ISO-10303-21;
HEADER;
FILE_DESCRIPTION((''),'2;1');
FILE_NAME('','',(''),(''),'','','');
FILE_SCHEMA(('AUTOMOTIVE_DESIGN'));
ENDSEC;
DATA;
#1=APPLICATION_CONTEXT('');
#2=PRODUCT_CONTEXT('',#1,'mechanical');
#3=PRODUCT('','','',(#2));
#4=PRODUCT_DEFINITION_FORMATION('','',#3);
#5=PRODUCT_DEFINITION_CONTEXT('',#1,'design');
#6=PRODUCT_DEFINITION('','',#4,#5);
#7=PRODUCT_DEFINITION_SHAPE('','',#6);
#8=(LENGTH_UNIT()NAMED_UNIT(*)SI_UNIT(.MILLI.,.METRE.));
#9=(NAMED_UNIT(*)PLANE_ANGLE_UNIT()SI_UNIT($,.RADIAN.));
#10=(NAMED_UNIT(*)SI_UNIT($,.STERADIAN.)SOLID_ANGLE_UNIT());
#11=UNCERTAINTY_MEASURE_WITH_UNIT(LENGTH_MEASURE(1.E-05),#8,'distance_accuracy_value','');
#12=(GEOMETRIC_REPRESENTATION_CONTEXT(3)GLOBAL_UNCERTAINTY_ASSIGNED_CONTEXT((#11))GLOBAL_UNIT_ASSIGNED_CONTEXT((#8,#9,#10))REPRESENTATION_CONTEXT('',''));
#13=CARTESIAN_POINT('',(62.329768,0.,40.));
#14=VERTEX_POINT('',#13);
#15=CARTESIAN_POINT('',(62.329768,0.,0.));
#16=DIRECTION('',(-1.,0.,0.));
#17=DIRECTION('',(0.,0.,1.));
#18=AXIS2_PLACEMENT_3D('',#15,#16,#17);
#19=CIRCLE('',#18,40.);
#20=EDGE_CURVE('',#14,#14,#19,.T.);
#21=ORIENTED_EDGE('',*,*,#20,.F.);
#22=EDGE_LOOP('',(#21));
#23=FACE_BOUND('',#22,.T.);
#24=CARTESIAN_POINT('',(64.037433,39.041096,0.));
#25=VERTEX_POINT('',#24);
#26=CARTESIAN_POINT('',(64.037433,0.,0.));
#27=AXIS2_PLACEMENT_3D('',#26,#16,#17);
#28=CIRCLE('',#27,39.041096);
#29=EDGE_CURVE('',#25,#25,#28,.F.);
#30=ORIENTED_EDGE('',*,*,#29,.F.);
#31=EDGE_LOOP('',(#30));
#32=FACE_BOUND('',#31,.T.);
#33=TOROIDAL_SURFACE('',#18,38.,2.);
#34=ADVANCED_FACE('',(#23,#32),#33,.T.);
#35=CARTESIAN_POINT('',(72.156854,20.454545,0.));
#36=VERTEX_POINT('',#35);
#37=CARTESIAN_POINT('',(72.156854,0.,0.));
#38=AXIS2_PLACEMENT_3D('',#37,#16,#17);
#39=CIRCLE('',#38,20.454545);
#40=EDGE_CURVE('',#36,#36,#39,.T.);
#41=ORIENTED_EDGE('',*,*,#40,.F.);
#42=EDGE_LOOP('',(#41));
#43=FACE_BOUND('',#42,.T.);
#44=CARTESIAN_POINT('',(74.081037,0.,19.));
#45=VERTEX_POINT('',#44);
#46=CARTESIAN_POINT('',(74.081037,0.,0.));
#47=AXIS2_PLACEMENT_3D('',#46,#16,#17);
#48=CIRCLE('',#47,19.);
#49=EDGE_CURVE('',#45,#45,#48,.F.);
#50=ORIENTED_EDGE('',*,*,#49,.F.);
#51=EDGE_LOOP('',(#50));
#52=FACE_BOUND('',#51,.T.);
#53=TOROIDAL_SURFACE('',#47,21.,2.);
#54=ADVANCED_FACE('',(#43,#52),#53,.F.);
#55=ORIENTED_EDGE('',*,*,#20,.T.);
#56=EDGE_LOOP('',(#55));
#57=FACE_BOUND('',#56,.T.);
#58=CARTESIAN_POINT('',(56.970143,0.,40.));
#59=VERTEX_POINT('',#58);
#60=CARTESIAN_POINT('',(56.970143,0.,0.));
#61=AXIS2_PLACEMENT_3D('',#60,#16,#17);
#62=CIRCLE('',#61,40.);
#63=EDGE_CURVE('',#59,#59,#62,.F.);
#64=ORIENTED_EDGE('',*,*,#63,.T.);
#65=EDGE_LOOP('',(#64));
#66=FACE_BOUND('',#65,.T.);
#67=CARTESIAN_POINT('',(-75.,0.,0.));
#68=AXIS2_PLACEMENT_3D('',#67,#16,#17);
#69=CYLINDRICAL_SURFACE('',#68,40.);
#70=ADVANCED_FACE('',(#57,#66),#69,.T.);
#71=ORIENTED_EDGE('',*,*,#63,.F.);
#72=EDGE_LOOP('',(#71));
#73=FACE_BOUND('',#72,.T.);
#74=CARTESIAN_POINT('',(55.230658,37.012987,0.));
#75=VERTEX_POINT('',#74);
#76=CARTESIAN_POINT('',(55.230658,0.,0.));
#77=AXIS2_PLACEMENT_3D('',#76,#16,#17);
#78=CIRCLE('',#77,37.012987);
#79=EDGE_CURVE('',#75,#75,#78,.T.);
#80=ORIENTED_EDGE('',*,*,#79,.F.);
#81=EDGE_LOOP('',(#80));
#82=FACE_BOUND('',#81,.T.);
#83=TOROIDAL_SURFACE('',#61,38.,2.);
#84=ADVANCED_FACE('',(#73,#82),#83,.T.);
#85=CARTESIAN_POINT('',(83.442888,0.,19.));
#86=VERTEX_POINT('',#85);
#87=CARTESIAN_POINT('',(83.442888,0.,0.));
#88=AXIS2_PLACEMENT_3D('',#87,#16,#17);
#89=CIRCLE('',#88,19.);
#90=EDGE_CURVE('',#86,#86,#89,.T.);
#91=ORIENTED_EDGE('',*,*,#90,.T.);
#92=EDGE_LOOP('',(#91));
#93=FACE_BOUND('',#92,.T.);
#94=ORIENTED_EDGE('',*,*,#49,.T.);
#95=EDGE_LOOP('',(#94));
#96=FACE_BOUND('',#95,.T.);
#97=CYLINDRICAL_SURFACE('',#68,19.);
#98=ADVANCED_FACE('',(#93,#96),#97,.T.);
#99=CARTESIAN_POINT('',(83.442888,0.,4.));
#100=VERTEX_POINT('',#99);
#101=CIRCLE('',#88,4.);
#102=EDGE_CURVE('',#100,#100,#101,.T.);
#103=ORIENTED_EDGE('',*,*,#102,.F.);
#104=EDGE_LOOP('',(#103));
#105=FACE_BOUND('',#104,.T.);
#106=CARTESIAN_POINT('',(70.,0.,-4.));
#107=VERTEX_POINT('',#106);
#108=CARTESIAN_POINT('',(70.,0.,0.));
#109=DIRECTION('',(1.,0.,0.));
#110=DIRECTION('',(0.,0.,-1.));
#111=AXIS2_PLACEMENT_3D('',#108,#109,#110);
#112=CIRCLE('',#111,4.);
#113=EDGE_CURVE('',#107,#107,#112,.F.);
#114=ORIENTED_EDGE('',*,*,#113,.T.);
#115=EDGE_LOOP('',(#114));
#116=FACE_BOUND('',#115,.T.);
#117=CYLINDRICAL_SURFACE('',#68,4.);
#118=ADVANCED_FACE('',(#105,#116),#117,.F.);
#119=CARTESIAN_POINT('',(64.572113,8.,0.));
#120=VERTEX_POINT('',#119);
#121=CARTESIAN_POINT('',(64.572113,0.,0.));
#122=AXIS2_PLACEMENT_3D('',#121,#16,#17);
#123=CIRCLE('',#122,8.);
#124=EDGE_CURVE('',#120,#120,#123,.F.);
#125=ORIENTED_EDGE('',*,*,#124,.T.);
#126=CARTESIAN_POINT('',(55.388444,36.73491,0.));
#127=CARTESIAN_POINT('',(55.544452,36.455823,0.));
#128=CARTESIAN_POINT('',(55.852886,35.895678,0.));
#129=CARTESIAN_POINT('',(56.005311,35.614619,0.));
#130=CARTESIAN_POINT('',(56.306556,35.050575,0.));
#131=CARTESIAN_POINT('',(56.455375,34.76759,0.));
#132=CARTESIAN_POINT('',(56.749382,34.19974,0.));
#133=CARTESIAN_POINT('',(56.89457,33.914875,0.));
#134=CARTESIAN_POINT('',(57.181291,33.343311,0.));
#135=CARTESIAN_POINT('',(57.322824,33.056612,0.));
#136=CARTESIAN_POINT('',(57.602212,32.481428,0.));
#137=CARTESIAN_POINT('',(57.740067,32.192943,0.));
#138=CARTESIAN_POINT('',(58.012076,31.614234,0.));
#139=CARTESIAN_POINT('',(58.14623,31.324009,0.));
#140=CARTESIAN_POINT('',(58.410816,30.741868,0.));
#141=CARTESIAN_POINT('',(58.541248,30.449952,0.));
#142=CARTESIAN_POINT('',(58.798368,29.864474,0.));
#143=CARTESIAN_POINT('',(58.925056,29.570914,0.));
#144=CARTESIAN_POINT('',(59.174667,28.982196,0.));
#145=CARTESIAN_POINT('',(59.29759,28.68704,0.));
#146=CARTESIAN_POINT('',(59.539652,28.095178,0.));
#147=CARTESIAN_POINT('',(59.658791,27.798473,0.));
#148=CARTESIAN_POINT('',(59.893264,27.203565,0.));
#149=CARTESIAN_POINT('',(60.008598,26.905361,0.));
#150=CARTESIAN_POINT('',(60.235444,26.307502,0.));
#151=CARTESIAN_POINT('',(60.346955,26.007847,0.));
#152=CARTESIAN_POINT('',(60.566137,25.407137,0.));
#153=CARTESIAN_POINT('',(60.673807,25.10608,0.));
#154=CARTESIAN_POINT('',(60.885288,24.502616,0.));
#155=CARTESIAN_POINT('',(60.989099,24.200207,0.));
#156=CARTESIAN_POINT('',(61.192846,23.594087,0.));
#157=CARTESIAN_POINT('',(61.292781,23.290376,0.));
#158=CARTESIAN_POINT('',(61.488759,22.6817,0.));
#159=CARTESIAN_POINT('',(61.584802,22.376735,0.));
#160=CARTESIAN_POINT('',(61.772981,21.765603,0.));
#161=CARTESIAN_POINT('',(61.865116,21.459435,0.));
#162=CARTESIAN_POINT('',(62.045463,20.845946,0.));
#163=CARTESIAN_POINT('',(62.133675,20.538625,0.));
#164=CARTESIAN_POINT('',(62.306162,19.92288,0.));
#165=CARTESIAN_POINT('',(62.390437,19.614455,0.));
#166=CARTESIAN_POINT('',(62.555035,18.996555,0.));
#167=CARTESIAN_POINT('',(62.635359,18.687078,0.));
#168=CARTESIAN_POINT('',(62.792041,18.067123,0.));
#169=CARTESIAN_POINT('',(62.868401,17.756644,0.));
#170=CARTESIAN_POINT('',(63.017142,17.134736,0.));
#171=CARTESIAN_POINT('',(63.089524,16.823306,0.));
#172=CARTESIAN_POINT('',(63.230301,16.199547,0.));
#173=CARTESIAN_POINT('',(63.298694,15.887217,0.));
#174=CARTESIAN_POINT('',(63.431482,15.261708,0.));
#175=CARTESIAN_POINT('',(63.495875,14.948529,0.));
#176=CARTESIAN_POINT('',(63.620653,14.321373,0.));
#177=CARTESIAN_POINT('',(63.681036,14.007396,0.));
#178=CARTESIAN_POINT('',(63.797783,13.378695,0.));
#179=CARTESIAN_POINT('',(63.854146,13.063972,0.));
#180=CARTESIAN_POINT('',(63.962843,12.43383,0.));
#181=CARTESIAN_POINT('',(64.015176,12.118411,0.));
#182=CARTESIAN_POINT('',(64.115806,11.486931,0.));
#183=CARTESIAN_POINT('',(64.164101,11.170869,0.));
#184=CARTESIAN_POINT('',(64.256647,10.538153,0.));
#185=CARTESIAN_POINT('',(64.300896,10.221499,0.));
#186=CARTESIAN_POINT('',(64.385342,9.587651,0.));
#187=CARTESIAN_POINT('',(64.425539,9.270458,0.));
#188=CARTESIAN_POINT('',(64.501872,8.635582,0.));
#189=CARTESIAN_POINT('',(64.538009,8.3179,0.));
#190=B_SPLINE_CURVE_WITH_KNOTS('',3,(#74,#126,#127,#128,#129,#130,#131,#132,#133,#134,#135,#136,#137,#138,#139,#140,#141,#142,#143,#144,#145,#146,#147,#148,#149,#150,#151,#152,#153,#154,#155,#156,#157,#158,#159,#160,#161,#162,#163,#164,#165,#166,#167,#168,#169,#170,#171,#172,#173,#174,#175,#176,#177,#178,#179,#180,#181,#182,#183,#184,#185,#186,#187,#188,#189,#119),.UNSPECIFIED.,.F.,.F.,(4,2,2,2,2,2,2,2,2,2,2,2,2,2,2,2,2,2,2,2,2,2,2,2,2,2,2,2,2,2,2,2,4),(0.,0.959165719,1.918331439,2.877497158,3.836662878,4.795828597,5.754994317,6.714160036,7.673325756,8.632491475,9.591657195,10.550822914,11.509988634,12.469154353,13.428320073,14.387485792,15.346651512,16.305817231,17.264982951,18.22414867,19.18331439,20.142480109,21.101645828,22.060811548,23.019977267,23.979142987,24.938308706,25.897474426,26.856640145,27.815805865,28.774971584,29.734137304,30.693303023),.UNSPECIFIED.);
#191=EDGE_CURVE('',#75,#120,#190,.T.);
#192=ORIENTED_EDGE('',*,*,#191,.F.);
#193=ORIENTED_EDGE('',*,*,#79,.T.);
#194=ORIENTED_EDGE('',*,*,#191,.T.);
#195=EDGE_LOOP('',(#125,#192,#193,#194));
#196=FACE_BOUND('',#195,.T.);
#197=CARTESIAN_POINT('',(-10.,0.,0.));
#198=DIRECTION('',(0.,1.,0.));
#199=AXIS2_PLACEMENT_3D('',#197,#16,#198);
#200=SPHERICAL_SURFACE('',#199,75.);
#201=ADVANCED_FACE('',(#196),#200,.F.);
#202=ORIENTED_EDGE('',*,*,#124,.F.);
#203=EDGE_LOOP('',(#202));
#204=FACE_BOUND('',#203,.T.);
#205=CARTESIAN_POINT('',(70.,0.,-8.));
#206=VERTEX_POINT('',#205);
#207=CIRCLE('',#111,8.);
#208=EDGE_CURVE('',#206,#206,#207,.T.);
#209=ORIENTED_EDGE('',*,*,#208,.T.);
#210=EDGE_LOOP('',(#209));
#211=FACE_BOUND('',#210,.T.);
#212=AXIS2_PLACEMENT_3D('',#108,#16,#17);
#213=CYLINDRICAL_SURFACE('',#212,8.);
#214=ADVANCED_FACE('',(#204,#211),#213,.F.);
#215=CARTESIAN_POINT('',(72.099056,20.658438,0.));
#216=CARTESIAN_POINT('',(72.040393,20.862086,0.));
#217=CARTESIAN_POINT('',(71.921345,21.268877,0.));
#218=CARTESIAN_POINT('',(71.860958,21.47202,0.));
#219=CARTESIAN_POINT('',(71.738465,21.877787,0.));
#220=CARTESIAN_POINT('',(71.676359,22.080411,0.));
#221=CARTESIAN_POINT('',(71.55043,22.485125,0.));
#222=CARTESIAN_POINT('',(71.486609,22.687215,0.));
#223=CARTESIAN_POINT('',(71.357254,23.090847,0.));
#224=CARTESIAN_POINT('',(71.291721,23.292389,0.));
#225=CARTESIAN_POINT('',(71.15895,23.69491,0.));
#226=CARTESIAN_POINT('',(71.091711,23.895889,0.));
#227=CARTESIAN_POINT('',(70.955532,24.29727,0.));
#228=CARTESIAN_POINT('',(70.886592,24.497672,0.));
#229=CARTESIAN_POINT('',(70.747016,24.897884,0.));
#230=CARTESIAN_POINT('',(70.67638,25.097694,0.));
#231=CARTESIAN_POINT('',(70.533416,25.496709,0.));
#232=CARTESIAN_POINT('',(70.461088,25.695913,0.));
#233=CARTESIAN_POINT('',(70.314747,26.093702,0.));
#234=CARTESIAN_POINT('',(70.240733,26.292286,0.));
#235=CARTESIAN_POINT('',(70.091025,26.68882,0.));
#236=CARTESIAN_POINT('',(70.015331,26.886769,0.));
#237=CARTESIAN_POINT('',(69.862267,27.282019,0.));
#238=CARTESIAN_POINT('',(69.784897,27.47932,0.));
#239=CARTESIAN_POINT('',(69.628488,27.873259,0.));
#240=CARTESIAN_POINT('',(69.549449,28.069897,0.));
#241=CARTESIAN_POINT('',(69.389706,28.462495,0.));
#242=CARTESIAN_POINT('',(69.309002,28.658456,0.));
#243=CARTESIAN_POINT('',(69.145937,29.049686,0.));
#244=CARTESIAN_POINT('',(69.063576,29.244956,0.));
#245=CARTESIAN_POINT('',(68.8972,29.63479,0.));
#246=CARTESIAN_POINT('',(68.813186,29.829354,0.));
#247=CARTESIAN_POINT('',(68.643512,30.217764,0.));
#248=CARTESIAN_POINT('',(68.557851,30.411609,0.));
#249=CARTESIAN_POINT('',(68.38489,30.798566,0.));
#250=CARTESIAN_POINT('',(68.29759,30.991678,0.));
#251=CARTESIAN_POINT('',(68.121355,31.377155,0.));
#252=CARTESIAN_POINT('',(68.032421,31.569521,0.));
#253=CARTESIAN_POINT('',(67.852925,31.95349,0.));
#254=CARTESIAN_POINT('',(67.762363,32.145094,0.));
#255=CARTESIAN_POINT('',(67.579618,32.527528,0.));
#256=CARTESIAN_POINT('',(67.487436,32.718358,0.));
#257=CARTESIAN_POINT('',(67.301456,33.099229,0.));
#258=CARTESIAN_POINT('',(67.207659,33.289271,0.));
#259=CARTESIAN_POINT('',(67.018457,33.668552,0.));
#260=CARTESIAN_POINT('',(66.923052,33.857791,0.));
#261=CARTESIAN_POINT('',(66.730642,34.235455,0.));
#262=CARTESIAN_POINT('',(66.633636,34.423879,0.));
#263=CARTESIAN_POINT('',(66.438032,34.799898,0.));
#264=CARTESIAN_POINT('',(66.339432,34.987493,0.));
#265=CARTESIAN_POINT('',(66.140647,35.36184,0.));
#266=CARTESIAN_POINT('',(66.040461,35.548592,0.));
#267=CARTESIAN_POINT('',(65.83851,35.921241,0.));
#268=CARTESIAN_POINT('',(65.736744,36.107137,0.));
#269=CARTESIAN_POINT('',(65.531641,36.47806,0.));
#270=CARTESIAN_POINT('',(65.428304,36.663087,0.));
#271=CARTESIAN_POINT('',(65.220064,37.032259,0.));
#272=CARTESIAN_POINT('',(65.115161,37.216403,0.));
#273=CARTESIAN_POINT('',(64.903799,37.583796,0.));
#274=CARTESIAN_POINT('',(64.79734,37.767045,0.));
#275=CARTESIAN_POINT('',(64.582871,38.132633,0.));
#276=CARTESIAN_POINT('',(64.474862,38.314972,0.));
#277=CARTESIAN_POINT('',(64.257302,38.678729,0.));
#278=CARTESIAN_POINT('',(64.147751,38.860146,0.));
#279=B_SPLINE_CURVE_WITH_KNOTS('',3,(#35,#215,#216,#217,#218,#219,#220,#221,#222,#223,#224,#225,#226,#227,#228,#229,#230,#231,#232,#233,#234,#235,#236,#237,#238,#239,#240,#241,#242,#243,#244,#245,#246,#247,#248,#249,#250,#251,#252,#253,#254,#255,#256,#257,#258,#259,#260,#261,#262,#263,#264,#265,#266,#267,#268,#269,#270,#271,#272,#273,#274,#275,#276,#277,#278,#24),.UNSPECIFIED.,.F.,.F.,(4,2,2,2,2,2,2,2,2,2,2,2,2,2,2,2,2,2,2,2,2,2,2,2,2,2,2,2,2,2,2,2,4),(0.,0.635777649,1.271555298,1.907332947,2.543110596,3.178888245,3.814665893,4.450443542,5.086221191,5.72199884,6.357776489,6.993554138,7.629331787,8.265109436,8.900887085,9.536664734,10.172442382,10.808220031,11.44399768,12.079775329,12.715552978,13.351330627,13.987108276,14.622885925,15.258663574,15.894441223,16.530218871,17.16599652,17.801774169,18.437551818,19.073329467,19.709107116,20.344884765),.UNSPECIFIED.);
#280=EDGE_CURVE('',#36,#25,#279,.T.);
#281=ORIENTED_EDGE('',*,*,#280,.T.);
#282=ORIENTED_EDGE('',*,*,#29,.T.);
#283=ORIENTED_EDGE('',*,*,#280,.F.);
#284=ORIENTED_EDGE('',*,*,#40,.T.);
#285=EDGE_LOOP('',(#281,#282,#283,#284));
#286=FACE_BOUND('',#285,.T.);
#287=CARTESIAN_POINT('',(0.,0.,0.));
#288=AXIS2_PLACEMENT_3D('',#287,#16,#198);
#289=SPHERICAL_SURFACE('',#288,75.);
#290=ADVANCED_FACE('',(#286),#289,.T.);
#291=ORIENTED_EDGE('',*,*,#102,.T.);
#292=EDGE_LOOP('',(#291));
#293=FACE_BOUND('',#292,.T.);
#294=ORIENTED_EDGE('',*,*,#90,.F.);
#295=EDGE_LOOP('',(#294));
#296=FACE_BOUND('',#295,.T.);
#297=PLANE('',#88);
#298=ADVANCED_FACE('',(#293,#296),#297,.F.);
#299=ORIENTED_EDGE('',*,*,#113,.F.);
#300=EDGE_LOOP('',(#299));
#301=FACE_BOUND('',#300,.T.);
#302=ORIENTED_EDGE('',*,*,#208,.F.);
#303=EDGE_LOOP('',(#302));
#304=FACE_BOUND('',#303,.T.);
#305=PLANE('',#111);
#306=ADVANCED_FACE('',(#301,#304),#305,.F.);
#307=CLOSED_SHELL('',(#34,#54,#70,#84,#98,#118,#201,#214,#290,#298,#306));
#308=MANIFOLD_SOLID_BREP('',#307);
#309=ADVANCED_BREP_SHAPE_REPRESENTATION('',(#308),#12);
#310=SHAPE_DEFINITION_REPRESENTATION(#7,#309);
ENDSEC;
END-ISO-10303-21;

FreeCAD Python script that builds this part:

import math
import FreeCAD as App
import Part
import Sketcher
Q = App.Units.Quantity


def edges_at(feature, points):
    """Names of the edges that pass closest to the given points."""
    edges = feature.Shape.Edges
    near = lambda p: min(range(len(edges)), key=lambda i: edges[i].distToShape(Part.Vertex(*p))[0])
    return sorted({f"Edge{near(p) + 1}" for p in points})

doc = App.newDocument("Part")
body = doc.addObject("PartDesign::Body", "Body")

sketch1 = doc.addObject("Sketcher::SketchObject", "Sketch")
body.addObject(sketch1)
sketch1.AttachmentSupport = (doc.XY_Plane, [""])
sketch1.MapMode = "FlatFace"
sketch1.addGeometry([
    Part.LineSegment(App.Vector(64.893257, 4, 0), App.Vector(83.442888, 4, 0)),
    Part.LineSegment(App.Vector(83.442888, 4, 0), App.Vector(83.442888, 19, 0)),
    Part.LineSegment(App.Vector(83.442888, 19, 0), App.Vector(72.553429, 19, 0)),
    Part.ArcOfCircle(Part.Circle(App.Vector(0, 0, 0), App.Vector(0, 0, 1), 75), math.radians(14.67485), math.radians(32.230953)),
    Part.LineSegment(App.Vector(63.442888, 40, 0), App.Vector(53.442888, 40, 0)),
    Part.ArcOfCircle(Part.Circle(App.Vector(-10, 0, 0), App.Vector(0, 0, 1), 75), math.radians(3.057225), math.radians(32.230953)),
], False)
sketch1.addConstraint([
    Sketcher.Constraint("Coincident", 0, 2, 1, 1),
    Sketcher.Constraint("Coincident", 1, 2, 2, 1),
    Sketcher.Constraint("Coincident", 2, 2, 3, 1),
    Sketcher.Constraint("Coincident", 3, 2, 4, 1),
    Sketcher.Constraint("Coincident", 4, 2, 5, 2),
    Sketcher.Constraint("Coincident", 5, 1, 0, 1),
    Sketcher.Constraint("Horizontal", 0),
    Sketcher.Constraint("Vertical", 1),
    Sketcher.Constraint("Horizontal", 2),
    Sketcher.Constraint("Horizontal", 4),
    Sketcher.Constraint("Coincident", 3, 3, -1, 1),
    Sketcher.Constraint("Equal", 3, 5),
    Sketcher.Constraint("PointOnObject", 5, 3, -1),
    Sketcher.Constraint("Radius", 3, Q("75 mm")),
    Sketcher.Constraint("DistanceX", 4, 2, 4, 1, Q("10 mm")),
    Sketcher.Constraint("DistanceY", 1, 1, 1, 2, Q("15 mm")),
    Sketcher.Constraint("DistanceY", -1, 1, 0, 2, Q("4 mm")),
    Sketcher.Constraint("DistanceY", -1, 1, 3, 2, Q("40 mm")),
    Sketcher.Constraint("DistanceX", 3, 2, 1, 2, Q("20 mm")),
])
revolution = doc.addObject("PartDesign::Revolution", "Revolution")
body.addObject(revolution)
revolution.Profile = sketch1
revolution.ReferenceAxis = (sketch1, ["H_Axis"])
revolution.Angle = 360
doc.recompute()

fillet = doc.addObject("PartDesign::Fillet", "Fillet")
body.addObject(fillet)
fillet.Base = (revolution, edges_at(revolution, [(72.553, -19, 0), (53.443, -40, 0), (63.443, -40, 0)]))
fillet.Radius = 2

sketch2 = doc.addObject("Sketcher::SketchObject", "Sketch001")
body.addObject(sketch2)
sketch2.AttachmentSupport = (doc.YZ_Plane, [""])
sketch2.MapMode = "FlatFace"
sketch2.addGeometry(Part.Circle(App.Vector(0, 0, 0), App.Vector(0, 0, 1), 8), False)
sketch2.addConstraint([
    Sketcher.Constraint("Coincident", 0, 3, -1, 1),
    Sketcher.Constraint("Diameter", 0, Q("16 mm")),
])
pocket1 = doc.addObject("PartDesign::Pocket", "Pocket")
body.addObject(pocket1)
pocket1.Profile = sketch2
pocket1.Length = 70
pocket1.Reversed = True

doc.recompute()
